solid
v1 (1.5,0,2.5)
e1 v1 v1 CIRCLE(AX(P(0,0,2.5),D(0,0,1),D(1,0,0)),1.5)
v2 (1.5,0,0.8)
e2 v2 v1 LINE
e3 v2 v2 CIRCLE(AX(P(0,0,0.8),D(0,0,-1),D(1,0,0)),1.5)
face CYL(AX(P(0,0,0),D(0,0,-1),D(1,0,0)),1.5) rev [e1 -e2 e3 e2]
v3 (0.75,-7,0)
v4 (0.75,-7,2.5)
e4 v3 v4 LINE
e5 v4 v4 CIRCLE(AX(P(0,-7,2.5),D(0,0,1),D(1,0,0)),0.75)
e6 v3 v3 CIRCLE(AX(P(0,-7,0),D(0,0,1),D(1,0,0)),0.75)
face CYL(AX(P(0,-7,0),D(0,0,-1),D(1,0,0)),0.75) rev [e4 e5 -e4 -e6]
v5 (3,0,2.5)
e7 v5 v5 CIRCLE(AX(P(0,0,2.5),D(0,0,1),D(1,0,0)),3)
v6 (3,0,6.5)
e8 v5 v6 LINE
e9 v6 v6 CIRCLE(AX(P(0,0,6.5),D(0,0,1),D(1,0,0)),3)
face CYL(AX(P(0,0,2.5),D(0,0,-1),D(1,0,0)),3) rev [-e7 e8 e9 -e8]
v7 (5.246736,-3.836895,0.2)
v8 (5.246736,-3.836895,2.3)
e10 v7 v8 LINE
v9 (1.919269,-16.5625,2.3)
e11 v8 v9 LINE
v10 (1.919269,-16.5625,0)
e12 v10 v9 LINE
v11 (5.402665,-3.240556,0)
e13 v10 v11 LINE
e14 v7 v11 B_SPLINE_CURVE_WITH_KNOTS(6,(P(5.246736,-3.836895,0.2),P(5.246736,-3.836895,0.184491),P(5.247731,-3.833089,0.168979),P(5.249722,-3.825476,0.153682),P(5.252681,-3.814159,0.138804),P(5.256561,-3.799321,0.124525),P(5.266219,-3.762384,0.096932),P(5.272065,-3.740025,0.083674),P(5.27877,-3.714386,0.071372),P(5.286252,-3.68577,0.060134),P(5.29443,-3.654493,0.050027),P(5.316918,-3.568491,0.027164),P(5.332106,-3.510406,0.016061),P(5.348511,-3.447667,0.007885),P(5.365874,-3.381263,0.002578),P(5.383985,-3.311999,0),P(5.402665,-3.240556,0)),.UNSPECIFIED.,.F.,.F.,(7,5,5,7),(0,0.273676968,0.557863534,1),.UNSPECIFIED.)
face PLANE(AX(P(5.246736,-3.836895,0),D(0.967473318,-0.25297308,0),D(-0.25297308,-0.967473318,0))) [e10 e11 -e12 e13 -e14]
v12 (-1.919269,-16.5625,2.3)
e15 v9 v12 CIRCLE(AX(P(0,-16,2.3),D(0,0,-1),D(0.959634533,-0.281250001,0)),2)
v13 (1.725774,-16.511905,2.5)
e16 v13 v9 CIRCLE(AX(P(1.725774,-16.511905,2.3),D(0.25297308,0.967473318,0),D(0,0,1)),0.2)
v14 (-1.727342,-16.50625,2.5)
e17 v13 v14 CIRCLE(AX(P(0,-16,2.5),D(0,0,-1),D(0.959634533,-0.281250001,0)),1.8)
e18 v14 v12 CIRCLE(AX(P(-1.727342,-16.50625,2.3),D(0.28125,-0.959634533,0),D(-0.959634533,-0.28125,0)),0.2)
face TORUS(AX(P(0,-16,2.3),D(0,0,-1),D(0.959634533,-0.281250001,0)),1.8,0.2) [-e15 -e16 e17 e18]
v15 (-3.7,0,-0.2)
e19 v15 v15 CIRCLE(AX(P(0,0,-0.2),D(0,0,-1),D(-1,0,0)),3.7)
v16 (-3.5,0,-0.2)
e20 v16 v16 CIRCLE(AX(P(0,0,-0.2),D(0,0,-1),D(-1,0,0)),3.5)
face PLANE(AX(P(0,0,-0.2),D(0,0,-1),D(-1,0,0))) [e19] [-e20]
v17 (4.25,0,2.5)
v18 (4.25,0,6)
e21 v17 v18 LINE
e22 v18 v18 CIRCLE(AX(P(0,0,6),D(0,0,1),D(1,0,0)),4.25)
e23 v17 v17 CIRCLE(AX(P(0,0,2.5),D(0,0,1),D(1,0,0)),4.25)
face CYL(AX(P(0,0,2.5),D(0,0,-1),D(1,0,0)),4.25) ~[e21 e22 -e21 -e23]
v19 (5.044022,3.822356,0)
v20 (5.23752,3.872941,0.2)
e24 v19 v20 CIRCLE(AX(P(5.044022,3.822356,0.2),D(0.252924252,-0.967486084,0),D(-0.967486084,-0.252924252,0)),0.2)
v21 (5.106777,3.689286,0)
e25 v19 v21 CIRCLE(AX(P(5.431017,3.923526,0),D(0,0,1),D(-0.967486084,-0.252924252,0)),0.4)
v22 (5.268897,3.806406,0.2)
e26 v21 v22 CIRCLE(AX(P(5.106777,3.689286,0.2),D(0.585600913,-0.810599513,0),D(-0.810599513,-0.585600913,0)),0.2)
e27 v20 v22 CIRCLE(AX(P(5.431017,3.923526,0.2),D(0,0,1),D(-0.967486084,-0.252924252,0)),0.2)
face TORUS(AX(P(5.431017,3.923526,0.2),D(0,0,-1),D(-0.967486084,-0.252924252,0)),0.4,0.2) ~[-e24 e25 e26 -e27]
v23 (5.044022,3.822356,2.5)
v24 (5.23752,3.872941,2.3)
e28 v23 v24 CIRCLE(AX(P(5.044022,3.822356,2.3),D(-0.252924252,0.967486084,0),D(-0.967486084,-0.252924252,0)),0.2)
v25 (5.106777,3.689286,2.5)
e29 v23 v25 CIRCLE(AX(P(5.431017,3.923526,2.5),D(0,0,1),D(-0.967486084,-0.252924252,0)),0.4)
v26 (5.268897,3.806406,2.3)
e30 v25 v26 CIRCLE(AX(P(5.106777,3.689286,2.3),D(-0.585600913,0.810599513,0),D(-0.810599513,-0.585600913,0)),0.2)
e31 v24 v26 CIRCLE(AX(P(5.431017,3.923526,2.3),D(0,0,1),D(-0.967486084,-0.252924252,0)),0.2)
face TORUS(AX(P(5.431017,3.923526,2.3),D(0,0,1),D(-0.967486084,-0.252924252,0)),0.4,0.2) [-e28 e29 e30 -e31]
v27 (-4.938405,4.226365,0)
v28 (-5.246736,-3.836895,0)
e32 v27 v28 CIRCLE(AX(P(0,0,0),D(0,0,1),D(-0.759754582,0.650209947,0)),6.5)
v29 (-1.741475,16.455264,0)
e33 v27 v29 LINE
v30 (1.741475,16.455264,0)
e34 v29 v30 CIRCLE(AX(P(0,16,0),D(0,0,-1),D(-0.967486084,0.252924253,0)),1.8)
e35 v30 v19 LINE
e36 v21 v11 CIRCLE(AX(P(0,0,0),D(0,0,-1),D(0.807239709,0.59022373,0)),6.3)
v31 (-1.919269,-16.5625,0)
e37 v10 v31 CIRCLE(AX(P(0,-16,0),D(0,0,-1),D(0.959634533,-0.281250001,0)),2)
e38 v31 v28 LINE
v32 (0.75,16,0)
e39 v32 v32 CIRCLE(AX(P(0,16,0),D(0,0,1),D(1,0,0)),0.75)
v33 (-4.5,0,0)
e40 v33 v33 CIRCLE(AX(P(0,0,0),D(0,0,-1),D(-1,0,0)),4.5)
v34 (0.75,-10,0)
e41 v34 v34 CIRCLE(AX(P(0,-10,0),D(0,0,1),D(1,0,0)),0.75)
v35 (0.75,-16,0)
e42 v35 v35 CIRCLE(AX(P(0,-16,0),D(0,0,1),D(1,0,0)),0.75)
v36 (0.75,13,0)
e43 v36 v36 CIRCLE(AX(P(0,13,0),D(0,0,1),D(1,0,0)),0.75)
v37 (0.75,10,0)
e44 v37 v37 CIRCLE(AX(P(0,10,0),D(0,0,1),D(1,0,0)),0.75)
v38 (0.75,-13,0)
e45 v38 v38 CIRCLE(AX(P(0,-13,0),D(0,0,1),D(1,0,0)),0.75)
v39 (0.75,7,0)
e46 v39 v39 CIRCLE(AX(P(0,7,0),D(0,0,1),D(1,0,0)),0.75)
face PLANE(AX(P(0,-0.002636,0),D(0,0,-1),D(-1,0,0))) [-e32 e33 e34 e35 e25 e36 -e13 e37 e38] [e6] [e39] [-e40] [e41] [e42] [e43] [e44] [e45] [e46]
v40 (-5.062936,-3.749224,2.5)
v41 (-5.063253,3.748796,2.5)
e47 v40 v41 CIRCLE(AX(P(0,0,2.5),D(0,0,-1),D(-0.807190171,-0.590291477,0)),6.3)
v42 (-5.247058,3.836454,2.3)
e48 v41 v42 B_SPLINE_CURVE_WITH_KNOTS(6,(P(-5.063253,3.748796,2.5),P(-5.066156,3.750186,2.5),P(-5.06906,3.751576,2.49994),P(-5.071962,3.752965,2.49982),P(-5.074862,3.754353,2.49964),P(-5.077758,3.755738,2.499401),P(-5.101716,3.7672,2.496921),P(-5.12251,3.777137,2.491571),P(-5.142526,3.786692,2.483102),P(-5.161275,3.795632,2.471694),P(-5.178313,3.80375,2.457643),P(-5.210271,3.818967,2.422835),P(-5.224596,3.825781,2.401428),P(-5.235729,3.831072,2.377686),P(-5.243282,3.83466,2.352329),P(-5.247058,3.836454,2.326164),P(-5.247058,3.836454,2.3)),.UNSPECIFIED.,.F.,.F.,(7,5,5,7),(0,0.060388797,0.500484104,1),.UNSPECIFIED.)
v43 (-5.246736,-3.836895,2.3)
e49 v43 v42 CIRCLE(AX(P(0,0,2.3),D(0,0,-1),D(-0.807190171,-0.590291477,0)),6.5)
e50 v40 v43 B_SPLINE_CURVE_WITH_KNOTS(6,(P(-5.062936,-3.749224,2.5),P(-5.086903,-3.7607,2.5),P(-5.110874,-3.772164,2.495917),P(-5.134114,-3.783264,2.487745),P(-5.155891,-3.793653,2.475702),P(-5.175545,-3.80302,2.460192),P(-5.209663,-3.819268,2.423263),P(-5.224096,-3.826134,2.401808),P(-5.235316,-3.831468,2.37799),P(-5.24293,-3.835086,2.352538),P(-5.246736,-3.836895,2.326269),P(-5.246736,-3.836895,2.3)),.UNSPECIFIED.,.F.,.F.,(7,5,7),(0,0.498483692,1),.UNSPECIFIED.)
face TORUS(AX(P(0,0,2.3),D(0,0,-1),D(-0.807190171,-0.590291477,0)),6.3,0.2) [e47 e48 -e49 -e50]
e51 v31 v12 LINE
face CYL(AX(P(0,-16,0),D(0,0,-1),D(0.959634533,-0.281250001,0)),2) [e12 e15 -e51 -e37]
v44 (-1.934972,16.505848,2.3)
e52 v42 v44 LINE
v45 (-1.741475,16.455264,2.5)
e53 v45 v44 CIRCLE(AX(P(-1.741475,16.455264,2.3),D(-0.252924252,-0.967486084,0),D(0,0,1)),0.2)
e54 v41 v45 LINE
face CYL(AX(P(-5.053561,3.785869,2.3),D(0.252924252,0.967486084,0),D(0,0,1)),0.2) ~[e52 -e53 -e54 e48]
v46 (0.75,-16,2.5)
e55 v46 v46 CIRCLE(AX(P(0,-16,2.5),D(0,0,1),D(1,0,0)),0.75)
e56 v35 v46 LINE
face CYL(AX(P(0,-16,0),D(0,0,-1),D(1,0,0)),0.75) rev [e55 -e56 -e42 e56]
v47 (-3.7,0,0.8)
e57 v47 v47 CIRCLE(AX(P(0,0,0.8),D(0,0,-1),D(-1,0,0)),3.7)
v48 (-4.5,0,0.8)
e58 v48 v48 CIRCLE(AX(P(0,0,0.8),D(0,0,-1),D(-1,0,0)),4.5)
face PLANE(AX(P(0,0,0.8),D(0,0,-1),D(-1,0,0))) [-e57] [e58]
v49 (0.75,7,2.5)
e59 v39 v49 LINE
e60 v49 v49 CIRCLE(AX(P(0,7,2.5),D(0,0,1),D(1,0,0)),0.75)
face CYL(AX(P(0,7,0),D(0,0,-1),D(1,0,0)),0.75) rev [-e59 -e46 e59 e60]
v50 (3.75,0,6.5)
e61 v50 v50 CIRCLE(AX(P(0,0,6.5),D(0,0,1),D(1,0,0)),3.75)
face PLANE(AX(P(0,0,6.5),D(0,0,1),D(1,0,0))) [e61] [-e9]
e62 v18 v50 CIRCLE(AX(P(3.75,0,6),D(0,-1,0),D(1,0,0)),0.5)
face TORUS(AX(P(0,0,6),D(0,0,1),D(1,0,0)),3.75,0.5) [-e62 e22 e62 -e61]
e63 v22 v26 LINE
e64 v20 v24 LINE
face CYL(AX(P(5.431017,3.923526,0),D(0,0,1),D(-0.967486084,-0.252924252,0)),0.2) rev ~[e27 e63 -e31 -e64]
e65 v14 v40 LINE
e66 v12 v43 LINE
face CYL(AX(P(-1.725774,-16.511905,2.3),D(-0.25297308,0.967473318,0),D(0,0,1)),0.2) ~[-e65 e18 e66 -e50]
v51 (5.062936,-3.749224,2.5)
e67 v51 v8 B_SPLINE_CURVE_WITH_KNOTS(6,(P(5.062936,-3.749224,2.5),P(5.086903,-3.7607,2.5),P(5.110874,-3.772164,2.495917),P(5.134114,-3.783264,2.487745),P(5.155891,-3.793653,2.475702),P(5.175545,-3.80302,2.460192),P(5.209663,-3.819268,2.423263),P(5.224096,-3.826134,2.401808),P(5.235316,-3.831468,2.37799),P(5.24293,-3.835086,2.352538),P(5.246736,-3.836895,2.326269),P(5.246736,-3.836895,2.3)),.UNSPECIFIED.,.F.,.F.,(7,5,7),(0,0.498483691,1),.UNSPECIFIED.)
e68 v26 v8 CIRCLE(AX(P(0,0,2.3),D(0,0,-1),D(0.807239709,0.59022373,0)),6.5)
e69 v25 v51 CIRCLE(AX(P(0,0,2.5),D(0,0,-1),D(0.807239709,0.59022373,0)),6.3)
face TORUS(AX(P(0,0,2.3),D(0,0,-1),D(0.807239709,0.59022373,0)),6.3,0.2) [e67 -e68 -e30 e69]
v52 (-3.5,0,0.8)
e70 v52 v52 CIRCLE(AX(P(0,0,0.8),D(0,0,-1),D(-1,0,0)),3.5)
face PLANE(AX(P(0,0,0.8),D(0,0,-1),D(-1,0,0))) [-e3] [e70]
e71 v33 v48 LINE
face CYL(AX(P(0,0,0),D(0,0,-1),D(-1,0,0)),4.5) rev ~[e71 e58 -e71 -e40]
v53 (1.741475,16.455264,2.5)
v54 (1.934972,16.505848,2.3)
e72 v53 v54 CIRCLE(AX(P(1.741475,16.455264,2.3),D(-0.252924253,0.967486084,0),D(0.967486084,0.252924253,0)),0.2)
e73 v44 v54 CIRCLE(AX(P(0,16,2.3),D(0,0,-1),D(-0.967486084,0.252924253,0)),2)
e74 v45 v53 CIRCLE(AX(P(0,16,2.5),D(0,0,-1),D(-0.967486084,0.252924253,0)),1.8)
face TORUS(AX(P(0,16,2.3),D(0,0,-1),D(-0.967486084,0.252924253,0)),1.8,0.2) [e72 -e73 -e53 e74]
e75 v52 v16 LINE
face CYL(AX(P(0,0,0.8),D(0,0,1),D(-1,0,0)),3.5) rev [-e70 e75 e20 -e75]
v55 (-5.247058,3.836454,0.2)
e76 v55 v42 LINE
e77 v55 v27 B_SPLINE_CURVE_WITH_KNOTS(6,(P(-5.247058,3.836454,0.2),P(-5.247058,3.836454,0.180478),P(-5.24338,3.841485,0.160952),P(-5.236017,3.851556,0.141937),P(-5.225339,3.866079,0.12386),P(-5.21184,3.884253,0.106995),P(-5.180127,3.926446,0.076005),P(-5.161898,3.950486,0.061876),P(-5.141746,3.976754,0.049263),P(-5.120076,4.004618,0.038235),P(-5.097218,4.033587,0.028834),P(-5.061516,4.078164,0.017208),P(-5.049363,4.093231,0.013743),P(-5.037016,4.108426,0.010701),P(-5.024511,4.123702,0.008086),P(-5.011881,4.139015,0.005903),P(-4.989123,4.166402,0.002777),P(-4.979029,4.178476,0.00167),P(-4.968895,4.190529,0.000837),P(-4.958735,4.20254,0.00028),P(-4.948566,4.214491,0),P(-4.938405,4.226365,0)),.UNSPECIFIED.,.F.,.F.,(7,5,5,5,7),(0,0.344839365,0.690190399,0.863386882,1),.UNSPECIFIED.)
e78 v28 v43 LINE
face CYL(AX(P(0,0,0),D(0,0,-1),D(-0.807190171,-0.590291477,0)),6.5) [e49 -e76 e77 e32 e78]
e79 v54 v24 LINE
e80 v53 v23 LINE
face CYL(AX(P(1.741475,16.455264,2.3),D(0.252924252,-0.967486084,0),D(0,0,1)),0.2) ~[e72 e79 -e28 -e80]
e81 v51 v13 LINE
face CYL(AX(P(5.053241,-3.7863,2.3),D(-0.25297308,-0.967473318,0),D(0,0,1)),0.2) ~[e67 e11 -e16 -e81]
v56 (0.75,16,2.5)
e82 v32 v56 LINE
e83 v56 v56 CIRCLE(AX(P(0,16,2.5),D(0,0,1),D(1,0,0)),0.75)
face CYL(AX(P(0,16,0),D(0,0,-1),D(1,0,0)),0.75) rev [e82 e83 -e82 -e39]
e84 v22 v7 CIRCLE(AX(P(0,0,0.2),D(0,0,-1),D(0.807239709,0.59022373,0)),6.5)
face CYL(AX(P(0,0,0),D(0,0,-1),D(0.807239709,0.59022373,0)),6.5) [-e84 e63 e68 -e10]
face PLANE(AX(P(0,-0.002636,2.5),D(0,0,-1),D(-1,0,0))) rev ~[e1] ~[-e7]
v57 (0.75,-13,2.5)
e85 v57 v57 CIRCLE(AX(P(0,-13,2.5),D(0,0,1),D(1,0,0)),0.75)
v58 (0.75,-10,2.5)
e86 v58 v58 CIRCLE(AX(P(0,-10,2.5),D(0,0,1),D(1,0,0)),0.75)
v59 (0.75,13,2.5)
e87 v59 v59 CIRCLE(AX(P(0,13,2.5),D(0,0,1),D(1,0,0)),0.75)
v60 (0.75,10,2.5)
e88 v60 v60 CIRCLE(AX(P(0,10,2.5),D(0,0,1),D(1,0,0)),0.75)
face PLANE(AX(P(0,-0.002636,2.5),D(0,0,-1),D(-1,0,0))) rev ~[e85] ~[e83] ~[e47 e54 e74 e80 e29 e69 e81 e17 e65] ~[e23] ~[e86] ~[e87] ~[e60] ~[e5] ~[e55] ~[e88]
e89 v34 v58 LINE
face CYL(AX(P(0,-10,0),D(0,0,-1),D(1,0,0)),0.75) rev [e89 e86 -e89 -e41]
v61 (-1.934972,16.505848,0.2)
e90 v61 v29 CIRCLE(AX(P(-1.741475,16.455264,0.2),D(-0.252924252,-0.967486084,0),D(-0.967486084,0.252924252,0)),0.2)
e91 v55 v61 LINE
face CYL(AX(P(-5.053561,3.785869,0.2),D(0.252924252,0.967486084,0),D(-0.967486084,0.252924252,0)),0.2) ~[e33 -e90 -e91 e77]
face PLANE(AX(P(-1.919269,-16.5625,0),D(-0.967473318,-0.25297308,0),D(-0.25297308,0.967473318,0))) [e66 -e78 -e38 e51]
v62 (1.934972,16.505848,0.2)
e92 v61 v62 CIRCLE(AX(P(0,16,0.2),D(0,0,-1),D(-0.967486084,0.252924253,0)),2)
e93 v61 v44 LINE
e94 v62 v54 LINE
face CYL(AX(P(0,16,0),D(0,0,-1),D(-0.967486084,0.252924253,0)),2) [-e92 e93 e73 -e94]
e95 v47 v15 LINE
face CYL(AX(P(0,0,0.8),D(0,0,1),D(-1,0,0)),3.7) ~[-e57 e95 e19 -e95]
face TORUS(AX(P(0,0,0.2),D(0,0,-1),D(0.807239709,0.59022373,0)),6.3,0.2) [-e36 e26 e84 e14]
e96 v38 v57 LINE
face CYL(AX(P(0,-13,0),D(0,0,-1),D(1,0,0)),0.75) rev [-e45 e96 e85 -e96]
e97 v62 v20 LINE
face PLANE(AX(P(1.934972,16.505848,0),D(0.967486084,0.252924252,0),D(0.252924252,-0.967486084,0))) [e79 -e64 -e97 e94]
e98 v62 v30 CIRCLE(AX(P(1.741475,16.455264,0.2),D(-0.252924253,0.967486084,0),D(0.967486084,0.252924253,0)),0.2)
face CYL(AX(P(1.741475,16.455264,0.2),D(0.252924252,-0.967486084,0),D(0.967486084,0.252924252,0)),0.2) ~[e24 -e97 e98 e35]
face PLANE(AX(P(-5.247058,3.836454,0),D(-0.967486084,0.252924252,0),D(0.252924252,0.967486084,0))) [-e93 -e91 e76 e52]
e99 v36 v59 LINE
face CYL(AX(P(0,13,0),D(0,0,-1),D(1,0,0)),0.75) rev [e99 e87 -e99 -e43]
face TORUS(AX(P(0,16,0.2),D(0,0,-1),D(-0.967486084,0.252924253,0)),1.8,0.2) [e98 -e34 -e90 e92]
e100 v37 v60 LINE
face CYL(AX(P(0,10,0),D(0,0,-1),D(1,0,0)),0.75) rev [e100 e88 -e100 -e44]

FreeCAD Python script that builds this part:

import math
import FreeCAD as App
import Part
import Sketcher


def edges_at(feature, points):
    """Names of the edges that pass closest to the given points."""
    edges = feature.Shape.Edges
    near = lambda p: min(range(len(edges)), key=lambda i: edges[i].distToShape(Part.Vertex(*p))[0])
    return sorted({f"Edge{near(p) + 1}" for p in points})

doc = App.newDocument("Part")
body = doc.addObject("PartDesign::Body", "Body")

# Sketch on XY plane
sketch1 = body.newObject("Sketcher::SketchObject", "Sketch")
sketch1.AttachmentSupport = (doc.getObject("XY_Plane"), [""])
sketch1.MapMode = "FlatFace"
sketch1.addGeometry([
    Part.LineSegment(App.Vector(5.2, 3.8, 0), App.Vector(1.9, 16.5, 0)),  # 0
    Part.ArcOfCircle(Part.Circle(App.Vector(0, 16, 0), App.Vector(0, 0, 1), 2), math.radians(15), math.radians(165)),  # 1
    Part.LineSegment(App.Vector(-1.9, 16.5, 0), App.Vector(-5.2, 3.8, 0)),  # 2
    Part.ArcOfCircle(Part.Circle(App.Vector(0, 0, 0), App.Vector(0, 0, 1), 6.5), math.radians(144), math.radians(216)),  # 3
    Part.LineSegment(App.Vector(-5.2, -3.8, 0), App.Vector(-1.9, -16.6, 0)),  # 4
    Part.ArcOfCircle(Part.Circle(App.Vector(0, -16, 0), App.Vector(0, 0, 1), 2), math.radians(-164), math.radians(-16)),  # 5
    Part.LineSegment(App.Vector(1.9, -16.6, 0), App.Vector(5.2, -3.8, 0)),  # 6
    Part.ArcOfCircle(Part.Circle(App.Vector(0, 0, 0), App.Vector(0, 0, 1), 6.5), math.radians(-36), math.radians(36)),  # 7
    Part.Circle(App.Vector(0, -16, 0), App.Vector(0, 0, 1), 0.8),  # 8
    Part.Circle(App.Vector(0, -13, 0), App.Vector(0, 0, 1), 0.8),  # 9
    Part.Circle(App.Vector(0, -10, 0), App.Vector(0, 0, 1), 0.8),  # 10
    Part.Circle(App.Vector(0, -7, 0), App.Vector(0, 0, 1), 0.8),  # 11
    Part.Circle(App.Vector(0, 0, 0), App.Vector(0, 0, 1), 1.5),  # 12
    Part.Circle(App.Vector(0, 7, 0), App.Vector(0, 0, 1), 0.8),  # 13
    Part.Circle(App.Vector(0, 10, 0), App.Vector(0, 0, 1), 0.8),  # 14
    Part.Circle(App.Vector(0, 13, 0), App.Vector(0, 0, 1), 0.8),  # 15
    Part.Circle(App.Vector(0, 16, 0), App.Vector(0, 0, 1), 0.8),  # 16
], False)
sketch1.addConstraint([
    Sketcher.Constraint("Tangent", 0, 2, 1, 1),
    Sketcher.Constraint("Tangent", 1, 2, 2, 1),
    Sketcher.Constraint("Coincident", 2, 2, 3, 1),
    Sketcher.Constraint("Coincident", 3, 2, 4, 1),
    Sketcher.Constraint("Coincident", 4, 2, 5, 1),
    Sketcher.Constraint("Coincident", 5, 2, 6, 1),
    Sketcher.Constraint("Coincident", 6, 2, 7, 1),
    Sketcher.Constraint("Coincident", 7, 2, 0, 1),
    Sketcher.Constraint("Coincident", 3, 3, -1, 1),
    Sketcher.Constraint("Coincident", 7, 3, -1, 1),
    Sketcher.Constraint("Coincident", 12, 3, -1, 1),
    Sketcher.Constraint("Coincident", 8, 3, 5, 3),
    Sketcher.Constraint("Coincident", 16, 3, 1, 3),
    Sketcher.Constraint("Equal", 1, 5),
    Sketcher.Constraint("Equal", 3, 7),
    Sketcher.Constraint("Equal", 8, 9),
    Sketcher.Constraint("Equal", 9, 10),
    Sketcher.Constraint("Equal", 10, 11),
    Sketcher.Constraint("Equal", 11, 13),
    Sketcher.Constraint("Equal", 13, 14),
    Sketcher.Constraint("Equal", 14, 15),
    Sketcher.Constraint("Equal", 15, 16),
    Sketcher.Constraint("Symmetric", 1, 3, 5, 3, -1, 1),
    Sketcher.Constraint("Symmetric", 11, 3, 13, 3, -1, 1),
    Sketcher.Constraint("Symmetric", 10, 3, 14, 3, -1, 1),
    Sketcher.Constraint("Symmetric", 9, 3, 15, 3, -1, 1),
    Sketcher.Constraint("Symmetric", 0, 2, 1, 2, -2),
    Sketcher.Constraint("PointOnObject", 9, 3, -2),
    Sketcher.Constraint("PointOnObject", 10, 3, -2),
    Sketcher.Constraint("PointOnObject", 11, 3, -2),
    Sketcher.Constraint("Horizontal", 4, 2, 5, 2),
    Sketcher.Constraint("Horizontal", 3, 2, 6, 2),
    Sketcher.Constraint("Diameter", 12, 3.0),
    Sketcher.Constraint("Radius", 1, 2.0),
    Sketcher.Constraint("Diameter", 8, 1.5),
    Sketcher.Constraint("Radius", 3, 6.5),
    Sketcher.Constraint("DistanceY", -1, 1, 1, 3, 16.0),
    Sketcher.Constraint("DistanceY", 9, 3, -1, 1, 13.0),
    Sketcher.Constraint("DistanceY", 10, 3, -1, 1, 10.0),
    Sketcher.Constraint("DistanceY", 11, 3, -1, 1, 7.0),
    Sketcher.Constraint("DistanceY", 4, 2, -1, 1, 16.5625),
    Sketcher.Constraint("Distance", 0, 13.095169),
    Sketcher.Constraint("DistanceX", 2, 2, 3, 2, 0.000322),
])
pad1 = body.newObject("PartDesign::Pad", "Pad")
pad1.Profile = sketch1
pad1.Length = 2.5

# Sketch on XY plane
sketch2 = body.newObject("Sketcher::SketchObject", "Sketch001")
sketch2.AttachmentSupport = (doc.getObject("XY_Plane"), [""])
sketch2.MapMode = "FlatFace"
sketch2.AttachmentOffset = App.Placement(App.Vector(0, 0, 2.5), App.Rotation())
sketch2.addGeometry([
    Part.Circle(App.Vector(0, 0, 0), App.Vector(0, 0, 1), 4.2),
    Part.Circle(App.Vector(0, 0, 0), App.Vector(0, 0, 1), 3),
], False)
sketch2.addConstraint([
    Sketcher.Constraint("Coincident", 0, 3, -1, 1),
    Sketcher.Constraint("Coincident", 1, 3, -1, 1),
    Sketcher.Constraint("Diameter", 1, 6.0),
    Sketcher.Constraint("Diameter", 0, 8.5),
])
pad2 = body.newObject("PartDesign::Pad", "Pad001")
pad2.Profile = sketch2
pad2.Length = 4

# Sketch on XY plane
sketch3 = body.newObject("Sketcher::SketchObject", "Sketch002")
sketch3.AttachmentSupport = (doc.getObject("XY_Plane"), [""])
sketch3.MapMode = "FlatFace"
sketch3.addGeometry(Part.Circle(App.Vector(0, 0, 0), App.Vector(0, 0, 1), 4.5), False)
sketch3.addConstraint([
    Sketcher.Constraint("Coincident", 0, 3, -1, 1),
    Sketcher.Constraint("Diameter", 0, 9.0),
])
pocket1 = body.newObject("PartDesign::Pocket", "Pocket")
pocket1.Profile = sketch3
pocket1.Length = 0.8
pocket1.Reversed = True

# Sketch on XY plane
sketch4 = body.newObject("Sketcher::SketchObject", "Sketch003")
sketch4.AttachmentSupport = (doc.getObject("XY_Plane"), [""])
sketch4.MapMode = "FlatFace"
sketch4.AttachmentOffset = App.Placement(App.Vector(0, 0, 0.8), App.Rotation())
sketch4.addGeometry([
    Part.Circle(App.Vector(0, 0, 0), App.Vector(0, 0, 1), 3.7),
    Part.Circle(App.Vector(0, 0, 0), App.Vector(0, 0, 1), 3.5),
], False)
sketch4.addConstraint([
    Sketcher.Constraint("Coincident", 0, 3, -1, 1),
    Sketcher.Constraint("Coincident", 1, 3, -1, 1),
    Sketcher.Constraint("Diameter", 1, 7.0),
    Sketcher.Constraint("Diameter", 0, 7.4),
])
pad3 = body.newObject("PartDesign::Pad", "Pad002")
pad3.Profile = sketch4
pad3.Length = 1
pad3.Reversed = True
doc.recompute()

fillet = body.newObject("PartDesign::Fillet", "Fillet")
fillet.Base = (pad3, edges_at(pad3, [(-4.25, 0, 6.5)]))
fillet.Radius = 0.5
doc.recompute()

fillet2 = body.newObject("PartDesign::Fillet", "Fillet001")
fillet2.Base = (fillet, edges_at(fillet, [
    (3.583, -10.2, 2.5),
    (0, -18, 2.5),
    (-3.583, -10.2, 2.5),
    (-3.591, 10.171, 2.5),
    (0, 18, 2.5),
    (-3.591, 10.171, 0),
    (0, 18, 0),
    (3.591, 10.171, 2.5),
    (3.591, 10.171, 0),
    (6.5, 0, 2.5),
    (6.5, 0, 0),
    (5.247, 3.836, 1.25),
    (-6.5, 0, 2.5),
]))
fillet2.Radius = 0.2

doc.recompute()
